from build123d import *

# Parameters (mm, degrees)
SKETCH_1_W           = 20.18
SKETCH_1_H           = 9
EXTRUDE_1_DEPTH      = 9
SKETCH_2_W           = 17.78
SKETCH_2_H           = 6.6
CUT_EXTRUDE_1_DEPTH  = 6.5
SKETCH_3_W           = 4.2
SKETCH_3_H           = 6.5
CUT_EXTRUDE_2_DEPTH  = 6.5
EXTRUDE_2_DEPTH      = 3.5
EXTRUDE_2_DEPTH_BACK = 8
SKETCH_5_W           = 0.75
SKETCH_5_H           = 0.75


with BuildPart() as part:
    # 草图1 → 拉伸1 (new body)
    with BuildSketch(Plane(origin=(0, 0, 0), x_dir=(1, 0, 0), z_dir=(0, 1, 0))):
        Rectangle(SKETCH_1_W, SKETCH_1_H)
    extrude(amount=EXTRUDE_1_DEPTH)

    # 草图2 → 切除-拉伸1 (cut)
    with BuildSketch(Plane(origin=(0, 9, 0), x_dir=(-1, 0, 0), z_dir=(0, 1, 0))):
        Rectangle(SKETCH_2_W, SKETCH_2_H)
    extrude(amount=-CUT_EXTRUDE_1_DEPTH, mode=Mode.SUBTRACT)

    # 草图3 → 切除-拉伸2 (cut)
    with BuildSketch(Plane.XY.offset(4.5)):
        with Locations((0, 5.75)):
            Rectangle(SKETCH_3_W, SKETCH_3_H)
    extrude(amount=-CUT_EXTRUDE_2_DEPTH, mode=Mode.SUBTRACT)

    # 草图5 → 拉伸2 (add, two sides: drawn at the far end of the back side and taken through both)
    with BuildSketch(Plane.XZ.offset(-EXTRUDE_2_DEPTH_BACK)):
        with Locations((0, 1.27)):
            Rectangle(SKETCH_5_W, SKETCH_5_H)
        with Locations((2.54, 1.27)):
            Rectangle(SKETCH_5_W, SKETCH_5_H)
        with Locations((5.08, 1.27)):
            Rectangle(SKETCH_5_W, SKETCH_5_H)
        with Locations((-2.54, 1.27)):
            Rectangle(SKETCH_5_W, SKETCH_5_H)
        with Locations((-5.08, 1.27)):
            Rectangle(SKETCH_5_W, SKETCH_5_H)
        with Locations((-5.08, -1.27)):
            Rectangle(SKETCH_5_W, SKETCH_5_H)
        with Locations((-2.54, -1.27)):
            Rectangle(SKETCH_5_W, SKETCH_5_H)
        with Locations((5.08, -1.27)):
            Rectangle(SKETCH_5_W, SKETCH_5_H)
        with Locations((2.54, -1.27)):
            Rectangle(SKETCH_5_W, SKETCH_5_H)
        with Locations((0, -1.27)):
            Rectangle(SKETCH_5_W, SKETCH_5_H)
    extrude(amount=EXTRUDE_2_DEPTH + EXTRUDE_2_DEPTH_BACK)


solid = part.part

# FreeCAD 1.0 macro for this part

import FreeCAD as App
import Part
import Sketcher
Q = App.Units.Quantity


def add_polygon(sketch, points):
    """Adds a closed chain of lines whose ends are joined by coincident constraints."""
    first, n = sketch.GeometryCount, len(points)
    for a, b in zip(points, points[1:] + points[:1]):
        sketch.addGeometry(Part.LineSegment(App.Vector(*a, 0), App.Vector(*b, 0)), False)
    for i in range(n):
        sketch.addConstraint(Sketcher.Constraint("Coincident", first + i, 2, first + (i + 1) % n, 1))

doc = App.newDocument("Part")
body = doc.addObject("PartDesign::Body", "Body")

sketch1 = body.newObject("Sketcher::SketchObject", "Sketch")
sketch1.AttachmentSupport = (doc.getObject("XZ_Plane"), [""])
sketch1.MapMode = "FlatFace"
add_polygon(sketch1, [(-10, -4), (-10, 4), (10, 4), (10, -4)])
sketch1.addConstraint(Sketcher.Constraint("Vertical", 0))
sketch1.addConstraint(Sketcher.Constraint("Horizontal", 1))
sketch1.addConstraint(Sketcher.Constraint("Vertical", 2))
sketch1.addConstraint(Sketcher.Constraint("Horizontal", 3))
sketch1.addConstraint(Sketcher.Constraint("Symmetric", 0, 2, 2, 2, -1, 1))
sketch1.addConstraint(Sketcher.Constraint("DistanceY", 0, 1, 0, 2, Q("9 mm")))
sketch1.addConstraint(Sketcher.Constraint("DistanceX", 1, 1, 1, 2, Q("20.18 mm")))
pad1 = body.newObject("PartDesign::Pad", "Pad")
pad1.Profile = sketch1
pad1.Length = 9
pad1.Reversed = True

sketch2 = body.newObject("Sketcher::SketchObject", "Sketch001")
sketch2.AttachmentSupport = (doc.getObject("XZ_Plane"), [""])
sketch2.MapMode = "FlatFace"
sketch2.AttachmentOffset = App.Placement(App.Vector(0, 0, -9), App.Rotation())
add_polygon(sketch2, [(9, 3), (9, -3), (-9, -3), (-9, 3)])
sketch2.addConstraint(Sketcher.Constraint("Vertical", 0))
sketch2.addConstraint(Sketcher.Constraint("Horizontal", 1))
sketch2.addConstraint(Sketcher.Constraint("Vertical", 2))
sketch2.addConstraint(Sketcher.Constraint("Horizontal", 3))
sketch2.addConstraint(Sketcher.Constraint("Symmetric", 0, 2, 2, 2, -1, 1))
sketch2.addConstraint(Sketcher.Constraint("DistanceY", 0, 2, 0, 1, Q("6.6 mm")))
sketch2.addConstraint(Sketcher.Constraint("DistanceX", 1, 2, 1, 1, Q("17.78 mm")))
pocket1 = body.newObject("PartDesign::Pocket", "Pocket")
pocket1.Profile = sketch2
pocket1.Length = 6.5
pocket1.Reversed = True

sketch3 = body.newObject("Sketcher::SketchObject", "Sketch002")
sketch3.AttachmentSupport = (doc.getObject("XY_Plane"), [""])
sketch3.MapMode = "FlatFace"
sketch3.AttachmentOffset = App.Placement(App.Vector(0, 0, 4.5), App.Rotation())
add_polygon(sketch3, [(-2.1, 9), (-2.1, 2.5), (2.1, 2.5), (2.1, 9)])
sketch3.addConstraint(Sketcher.Constraint("Vertical", 0))
sketch3.addConstraint(Sketcher.Constraint("Horizontal", 1))
sketch3.addConstraint(Sketcher.Constraint("Vertical", 2))
sketch3.addConstraint(Sketcher.Constraint("Horizontal", 3))
sketch3.addConstraint(Sketcher.Constraint("DistanceX", 1, 1, 1, 2, Q("4.2 mm")))
sketch3.addConstraint(Sketcher.Constraint("DistanceY", 0, 2, 0, 1, Q("6.5 mm")))
sketch3.addConstraint(Sketcher.Constraint("DistanceY", -1, 1, 2, 2, Q("9 mm")))
sketch3.addConstraint(Sketcher.Constraint("DistanceX", 0, 2, -1, 1, Q("2.1 mm")))
pocket2 = body.newObject("PartDesign::Pocket", "Pocket001")
pocket2.Profile = sketch3
pocket2.Length = 6.5

sketch4 = body.newObject("Sketcher::SketchObject", "Sketch003")
sketch4.AttachmentSupport = (doc.getObject("XZ_Plane"), [""])
sketch4.MapMode = "FlatFace"
add_polygon(sketch4, [(-0.4, 1.6), (-0.4, 0.9), (0.4, 0.9), (0.4, 1.6)])
add_polygon(sketch4, [(2.2, 1.6), (2.2, 0.9), (2.9, 0.9), (2.9, 1.6)])
add_polygon(sketch4, [(4.7, 1.6), (4.7, 0.9), (5.5, 0.9), (5.5, 1.6)])
add_polygon(sketch4, [(-2.9, 1.6), (-2.9, 0.9), (-2.2, 0.9), (-2.2, 1.6)])
add_polygon(sketch4, [(-5.5, 1.6), (-5.5, 0.9), (-4.7, 0.9), (-4.7, 1.6)])
add_polygon(sketch4, [(-5.5, -0.9), (-5.5, -1.6), (-4.7, -1.6), (-4.7, -0.9)])
add_polygon(sketch4, [(-2.9, -0.9), (-2.9, -1.6), (-2.2, -1.6), (-2.2, -0.9)])
add_polygon(sketch4, [(4.7, -0.9), (4.7, -1.6), (5.5, -1.6), (5.5, -0.9)])
add_polygon(sketch4, [(2.2, -0.9), (2.2, -1.6), (2.9, -1.6), (2.9, -0.9)])
add_polygon(sketch4, [(-0.4, -0.9), (-0.4, -1.6), (0.4, -1.6), (0.4, -0.9)])
sketch4.addConstraint(Sketcher.Constraint("Vertical", 0))
sketch4.addConstraint(Sketcher.Constraint("Horizontal", 1))
sketch4.addConstraint(Sketcher.Constraint("Vertical", 2))
sketch4.addConstraint(Sketcher.Constraint("Horizontal", 3))
sketch4.addConstraint(Sketcher.Constraint("Vertical", 4))
sketch4.addConstraint(Sketcher.Constraint("Horizontal", 5))
sketch4.addConstraint(Sketcher.Constraint("Vertical", 6))
sketch4.addConstraint(Sketcher.Constraint("Horizontal", 7))
sketch4.addConstraint(Sketcher.Constraint("Vertical", 8))
sketch4.addConstraint(Sketcher.Constraint("Horizontal", 9))
sketch4.addConstraint(Sketcher.Constraint("Vertical", 10))
sketch4.addConstraint(Sketcher.Constraint("Horizontal", 11))
sketch4.addConstraint(Sketcher.Constraint("Vertical", 12))
sketch4.addConstraint(Sketcher.Constraint("Horizontal", 13))
sketch4.addConstraint(Sketcher.Constraint("Vertical", 14))
sketch4.addConstraint(Sketcher.Constraint("Horizontal", 15))
sketch4.addConstraint(Sketcher.Constraint("Vertical", 16))
sketch4.addConstraint(Sketcher.Constraint("Horizontal", 17))
sketch4.addConstraint(Sketcher.Constraint("Vertical", 18))
sketch4.addConstraint(Sketcher.Constraint("Horizontal", 19))
sketch4.addConstraint(Sketcher.Constraint("Vertical", 20))
sketch4.addConstraint(Sketcher.Constraint("Horizontal", 21))
sketch4.addConstraint(Sketcher.Constraint("Vertical", 22))
sketch4.addConstraint(Sketcher.Constraint("Horizontal", 23))
sketch4.addConstraint(Sketcher.Constraint("Vertical", 24))
sketch4.addConstraint(Sketcher.Constraint("Horizontal", 25))
sketch4.addConstraint(Sketcher.Constraint("Vertical", 26))
sketch4.addConstraint(Sketcher.Constraint("Horizontal", 27))
sketch4.addConstraint(Sketcher.Constraint("Vertical", 28))
sketch4.addConstraint(Sketcher.Constraint("Horizontal", 29))
sketch4.addConstraint(Sketcher.Constraint("Vertical", 30))
sketch4.addConstraint(Sketcher.Constraint("Horizontal", 31))
sketch4.addConstraint(Sketcher.Constraint("Vertical", 32))
sketch4.addConstraint(Sketcher.Constraint("Horizontal", 33))
sketch4.addConstraint(Sketcher.Constraint("Vertical", 34))
sketch4.addConstraint(Sketcher.Constraint("Horizontal", 35))
sketch4.addConstraint(Sketcher.Constraint("Vertical", 36))
sketch4.addConstraint(Sketcher.Constraint("Horizontal", 37))
sketch4.addConstraint(Sketcher.Constraint("Vertical", 38))
sketch4.addConstraint(Sketcher.Constraint("Horizontal", 39))
sketch4.addConstraint(Sketcher.Constraint("Symmetric", 10, 2, 20, 2, -1, 1))
sketch4.addConstraint(Sketcher.Constraint("Symmetric", 8, 2, 22, 2, -1, 1))
sketch4.addConstraint(Sketcher.Constraint("Symmetric", 6, 2, 24, 2, -1, 1))
sketch4.addConstraint(Sketcher.Constraint("Symmetric", 4, 2, 26, 2, -1, 1))
sketch4.addConstraint(Sketcher.Constraint("Symmetric", 18, 2, 28, 2, -1, 1))
sketch4.addConstraint(Sketcher.Constraint("Symmetric", 16, 2, 30, 2, -1, 1))
sketch4.addConstraint(Sketcher.Constraint("Symmetric", 14, 2, 32, 2, -1, 1))
sketch4.addConstraint(Sketcher.Constraint("Symmetric", 12, 2, 34, 2, -1, 1))
sketch4.addConstraint(Sketcher.Constraint("Symmetric", 2, 2, 36, 2, -1, 1))
sketch4.addConstraint(Sketcher.Constraint("Symmetric", 0, 2, 38, 2, -1, 1))
sketch4.addConstraint(Sketcher.Constraint("Symmetric", 5, 2, 12, 2, -2))
sketch4.addConstraint(Sketcher.Constraint("Symmetric", 7, 2, 14, 2, -2))
sketch4.addConstraint(Sketcher.Constraint("Symmetric", 9, 2, 16, 2, -2))
sketch4.addConstraint(Sketcher.Constraint("Symmetric", 11, 2, 18, 2, -2))
sketch4.addConstraint(Sketcher.Constraint("Horizontal", 1, 2, 4, 2))
sketch4.addConstraint(Sketcher.Constraint("Horizontal", 3, 2, 6, 2))
sketch4.addConstraint(Sketcher.Constraint("Horizontal", 5, 2, 8, 2))
sketch4.addConstraint(Sketcher.Constraint("Horizontal", 7, 2, 10, 2))
sketch4.addConstraint(Sketcher.Constraint("Vertical", 3, 2, 36, 2))
sketch4.addConstraint(Sketcher.Constraint("Equal", 3, 5))
sketch4.addConstraint(Sketcher.Constraint("Equal", 7, 9))
sketch4.addConstraint(Sketcher.Constraint("Equal", 39, 0))
sketch4.addConstraint(Sketcher.Constraint("DistanceX", 1, 1, 1, 2, Q("0.75 mm")))
sketch4.addConstraint(Sketcher.Constraint("DistanceX", 1, 2, 4, 2, Q("1.79 mm")))
sketch4.addConstraint(Sketcher.Constraint("DistanceX", 5, 2, 8, 2, Q("1.79 mm")))
sketch4.addConstraint(Sketcher.Constraint("DistanceY", 20, 2, 16, 2, Q("2.54 mm")))
pad2 = body.newObject("PartDesign::Pad", "Pad001")
pad2.Profile = sketch4
pad2.Type = "TwoLengths"
pad2.Length = 3.5
pad2.Length2 = 8

doc.recompute()
